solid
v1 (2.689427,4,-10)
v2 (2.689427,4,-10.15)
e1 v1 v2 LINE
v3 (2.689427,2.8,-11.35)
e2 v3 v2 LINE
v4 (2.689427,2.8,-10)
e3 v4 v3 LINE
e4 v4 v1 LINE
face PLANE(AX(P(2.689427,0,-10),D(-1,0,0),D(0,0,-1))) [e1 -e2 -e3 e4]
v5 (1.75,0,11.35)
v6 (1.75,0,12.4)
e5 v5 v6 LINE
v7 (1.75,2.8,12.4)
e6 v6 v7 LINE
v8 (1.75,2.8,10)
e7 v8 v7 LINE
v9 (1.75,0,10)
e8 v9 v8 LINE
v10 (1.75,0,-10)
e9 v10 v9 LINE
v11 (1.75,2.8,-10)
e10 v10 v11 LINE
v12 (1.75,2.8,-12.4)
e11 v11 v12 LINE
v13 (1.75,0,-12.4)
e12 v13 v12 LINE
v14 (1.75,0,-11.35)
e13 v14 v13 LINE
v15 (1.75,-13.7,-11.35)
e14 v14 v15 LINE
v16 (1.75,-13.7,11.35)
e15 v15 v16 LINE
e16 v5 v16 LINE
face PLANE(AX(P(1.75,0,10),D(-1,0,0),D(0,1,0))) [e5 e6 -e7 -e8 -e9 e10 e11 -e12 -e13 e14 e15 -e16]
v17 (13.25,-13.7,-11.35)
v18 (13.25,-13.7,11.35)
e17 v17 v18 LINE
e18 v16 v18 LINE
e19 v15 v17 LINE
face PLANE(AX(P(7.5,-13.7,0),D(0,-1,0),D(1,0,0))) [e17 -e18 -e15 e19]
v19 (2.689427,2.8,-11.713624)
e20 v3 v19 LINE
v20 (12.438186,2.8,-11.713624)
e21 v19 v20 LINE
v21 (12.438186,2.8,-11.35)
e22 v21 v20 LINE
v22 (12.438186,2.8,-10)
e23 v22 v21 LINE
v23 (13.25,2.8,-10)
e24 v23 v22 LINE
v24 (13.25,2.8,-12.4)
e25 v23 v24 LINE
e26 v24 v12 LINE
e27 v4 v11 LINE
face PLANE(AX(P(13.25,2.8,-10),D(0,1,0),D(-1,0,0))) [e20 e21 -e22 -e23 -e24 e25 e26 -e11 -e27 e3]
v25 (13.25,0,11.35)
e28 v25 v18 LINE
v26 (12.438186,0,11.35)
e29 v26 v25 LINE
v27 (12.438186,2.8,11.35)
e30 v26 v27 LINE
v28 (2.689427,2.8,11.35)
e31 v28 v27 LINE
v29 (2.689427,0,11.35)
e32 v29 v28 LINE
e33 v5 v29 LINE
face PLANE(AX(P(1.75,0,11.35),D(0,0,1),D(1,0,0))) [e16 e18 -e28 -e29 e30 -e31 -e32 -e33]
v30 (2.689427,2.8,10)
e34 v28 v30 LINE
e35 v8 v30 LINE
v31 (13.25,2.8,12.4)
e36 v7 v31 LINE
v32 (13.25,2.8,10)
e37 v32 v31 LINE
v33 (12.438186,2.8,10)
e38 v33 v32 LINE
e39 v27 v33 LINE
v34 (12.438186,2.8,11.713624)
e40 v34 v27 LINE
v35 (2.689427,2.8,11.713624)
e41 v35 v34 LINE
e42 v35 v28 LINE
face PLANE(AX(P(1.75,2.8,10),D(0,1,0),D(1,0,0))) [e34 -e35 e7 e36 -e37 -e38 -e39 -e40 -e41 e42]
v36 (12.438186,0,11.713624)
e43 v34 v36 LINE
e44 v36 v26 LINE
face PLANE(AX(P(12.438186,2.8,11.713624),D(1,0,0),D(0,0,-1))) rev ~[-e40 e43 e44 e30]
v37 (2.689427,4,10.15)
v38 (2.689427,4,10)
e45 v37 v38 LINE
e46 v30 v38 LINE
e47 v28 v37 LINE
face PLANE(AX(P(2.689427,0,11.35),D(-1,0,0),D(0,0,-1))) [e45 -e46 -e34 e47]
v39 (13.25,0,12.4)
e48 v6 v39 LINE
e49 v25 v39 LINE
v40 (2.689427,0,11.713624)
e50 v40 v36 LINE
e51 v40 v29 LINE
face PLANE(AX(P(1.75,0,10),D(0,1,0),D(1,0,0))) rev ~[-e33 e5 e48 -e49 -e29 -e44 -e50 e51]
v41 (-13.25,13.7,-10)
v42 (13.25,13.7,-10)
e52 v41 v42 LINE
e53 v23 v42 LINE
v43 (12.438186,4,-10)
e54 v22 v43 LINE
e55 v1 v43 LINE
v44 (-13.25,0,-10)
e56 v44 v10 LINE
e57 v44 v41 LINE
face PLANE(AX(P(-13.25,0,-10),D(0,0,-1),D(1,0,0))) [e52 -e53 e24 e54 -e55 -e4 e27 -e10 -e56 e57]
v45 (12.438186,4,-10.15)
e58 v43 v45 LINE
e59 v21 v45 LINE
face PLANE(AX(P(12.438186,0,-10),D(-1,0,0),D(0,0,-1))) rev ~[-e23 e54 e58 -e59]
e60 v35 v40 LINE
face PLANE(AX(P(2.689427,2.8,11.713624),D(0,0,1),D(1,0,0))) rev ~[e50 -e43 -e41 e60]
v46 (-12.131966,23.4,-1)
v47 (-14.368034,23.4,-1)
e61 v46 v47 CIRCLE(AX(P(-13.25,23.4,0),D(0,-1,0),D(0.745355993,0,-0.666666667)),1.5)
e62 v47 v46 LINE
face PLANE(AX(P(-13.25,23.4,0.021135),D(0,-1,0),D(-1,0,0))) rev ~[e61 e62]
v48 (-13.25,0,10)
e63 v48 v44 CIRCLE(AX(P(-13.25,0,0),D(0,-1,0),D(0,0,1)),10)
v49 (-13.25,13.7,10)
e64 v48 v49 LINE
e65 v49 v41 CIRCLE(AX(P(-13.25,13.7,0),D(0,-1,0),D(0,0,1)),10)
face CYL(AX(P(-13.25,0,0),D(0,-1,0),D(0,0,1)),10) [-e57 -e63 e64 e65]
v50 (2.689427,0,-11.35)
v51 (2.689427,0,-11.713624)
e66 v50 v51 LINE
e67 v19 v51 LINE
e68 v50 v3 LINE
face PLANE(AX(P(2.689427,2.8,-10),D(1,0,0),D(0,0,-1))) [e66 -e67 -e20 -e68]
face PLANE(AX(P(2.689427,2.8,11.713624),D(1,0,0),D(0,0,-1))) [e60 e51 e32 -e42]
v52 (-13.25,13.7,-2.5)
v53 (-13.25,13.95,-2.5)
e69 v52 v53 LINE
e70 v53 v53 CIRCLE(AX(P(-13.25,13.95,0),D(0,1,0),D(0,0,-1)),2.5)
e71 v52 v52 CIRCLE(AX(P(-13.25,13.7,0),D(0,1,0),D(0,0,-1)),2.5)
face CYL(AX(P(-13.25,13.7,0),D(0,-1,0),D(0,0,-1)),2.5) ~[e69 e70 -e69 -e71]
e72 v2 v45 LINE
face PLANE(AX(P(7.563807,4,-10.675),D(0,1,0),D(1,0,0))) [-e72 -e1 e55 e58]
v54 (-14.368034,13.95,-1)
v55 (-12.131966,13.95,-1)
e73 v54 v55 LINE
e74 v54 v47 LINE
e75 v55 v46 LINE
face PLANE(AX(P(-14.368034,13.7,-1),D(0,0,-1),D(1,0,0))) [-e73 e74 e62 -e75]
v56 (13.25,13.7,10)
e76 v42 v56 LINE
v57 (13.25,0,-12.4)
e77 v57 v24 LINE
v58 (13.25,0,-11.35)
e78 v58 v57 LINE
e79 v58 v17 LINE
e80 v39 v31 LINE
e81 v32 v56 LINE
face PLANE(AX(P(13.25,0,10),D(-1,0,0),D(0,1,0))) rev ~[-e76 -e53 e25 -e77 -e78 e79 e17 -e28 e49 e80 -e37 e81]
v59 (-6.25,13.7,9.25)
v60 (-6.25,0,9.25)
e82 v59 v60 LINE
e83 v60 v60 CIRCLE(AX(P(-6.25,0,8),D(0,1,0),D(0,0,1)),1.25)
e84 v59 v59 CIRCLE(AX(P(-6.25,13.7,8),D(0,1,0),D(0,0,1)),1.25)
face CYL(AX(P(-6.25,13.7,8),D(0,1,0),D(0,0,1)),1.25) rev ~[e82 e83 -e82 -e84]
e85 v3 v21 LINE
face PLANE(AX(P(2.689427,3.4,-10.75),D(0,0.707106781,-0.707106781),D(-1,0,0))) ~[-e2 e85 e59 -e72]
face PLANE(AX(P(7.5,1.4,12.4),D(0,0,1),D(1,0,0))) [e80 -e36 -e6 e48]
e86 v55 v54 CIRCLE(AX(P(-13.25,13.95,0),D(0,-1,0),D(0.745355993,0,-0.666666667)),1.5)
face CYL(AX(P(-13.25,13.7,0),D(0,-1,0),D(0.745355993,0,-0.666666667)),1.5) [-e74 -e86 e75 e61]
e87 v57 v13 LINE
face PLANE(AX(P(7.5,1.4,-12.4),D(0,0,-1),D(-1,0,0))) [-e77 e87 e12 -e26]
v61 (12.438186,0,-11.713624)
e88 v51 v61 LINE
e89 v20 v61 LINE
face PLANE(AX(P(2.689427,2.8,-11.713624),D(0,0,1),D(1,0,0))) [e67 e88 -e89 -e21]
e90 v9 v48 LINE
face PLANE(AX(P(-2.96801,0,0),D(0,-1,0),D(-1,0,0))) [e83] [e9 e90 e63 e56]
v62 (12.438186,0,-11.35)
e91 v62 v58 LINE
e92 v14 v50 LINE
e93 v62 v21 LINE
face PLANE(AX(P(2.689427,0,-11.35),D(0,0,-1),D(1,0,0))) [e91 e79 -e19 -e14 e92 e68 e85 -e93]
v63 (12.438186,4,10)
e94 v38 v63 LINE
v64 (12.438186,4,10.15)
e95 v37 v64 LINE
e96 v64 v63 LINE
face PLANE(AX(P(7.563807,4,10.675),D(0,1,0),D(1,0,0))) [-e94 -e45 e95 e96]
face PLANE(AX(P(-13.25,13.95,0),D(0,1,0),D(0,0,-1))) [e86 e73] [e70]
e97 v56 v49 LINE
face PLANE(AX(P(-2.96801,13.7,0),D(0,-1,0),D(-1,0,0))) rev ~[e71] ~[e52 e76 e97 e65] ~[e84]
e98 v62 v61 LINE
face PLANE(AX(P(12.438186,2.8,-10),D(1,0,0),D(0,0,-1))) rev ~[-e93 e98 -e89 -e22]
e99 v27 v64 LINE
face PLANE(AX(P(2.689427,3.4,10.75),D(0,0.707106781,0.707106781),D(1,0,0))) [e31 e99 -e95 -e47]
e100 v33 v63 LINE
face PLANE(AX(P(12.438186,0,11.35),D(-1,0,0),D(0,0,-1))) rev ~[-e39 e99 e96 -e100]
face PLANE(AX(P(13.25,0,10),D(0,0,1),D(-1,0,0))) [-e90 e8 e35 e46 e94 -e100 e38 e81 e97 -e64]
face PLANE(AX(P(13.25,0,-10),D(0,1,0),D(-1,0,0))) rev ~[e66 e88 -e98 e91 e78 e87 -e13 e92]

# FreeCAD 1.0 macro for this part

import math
import FreeCAD as App
import Part
import Sketcher
from FreeCAD import Vector


def edges_at(feature, points):
    """Names of the edges that pass closest to the given points."""
    edges = feature.Shape.Edges
    near = lambda p: min(range(len(edges)), key=lambda i: edges[i].distToShape(Part.Vertex(*p))[0])
    return sorted({f"Edge{near(p) + 1}" for p in points})

doc = App.newDocument("Part")
body = doc.addObject("PartDesign::Body", "Body")

# Sketch on XZ plane
sketch1 = body.newObject("Sketcher::SketchObject", "Sketch")
sketch1.AttachmentSupport = (doc.getObject("XZ_Plane"), [""])
sketch1.MapMode = "FlatFace"
sketch1.addGeometry([
    Part.LineSegment(Vector(13, -10, 0), Vector(-13, -10, 0)),
    Part.ArcOfCircle(Part.Circle(Vector(-13, 0, 0), Vector(0, 0, 1), 10), math.radians(90), math.radians(270)),
    Part.LineSegment(Vector(-13, 10, 0), Vector(13, 10, 0)),
    Part.LineSegment(Vector(13, 10, 0), Vector(13, -10, 0)),
], False)
sketch1.addConstraint([
    Sketcher.Constraint("Tangent", 0, 2, 1, 2),
    Sketcher.Constraint("Tangent", 1, 1, 2, 1),
    Sketcher.Constraint("Coincident", 2, 2, 3, 1),
    Sketcher.Constraint("Coincident", 3, 2, 0, 1),
    Sketcher.Constraint("Horizontal", 0),
    Sketcher.Constraint("Horizontal", 2),
    Sketcher.Constraint("Vertical", 3),
    Sketcher.Constraint("Symmetric", 0, 2, 2, 2, -1, 1),
    Sketcher.Constraint("Radius", 1, 10.0),
    Sketcher.Constraint("DistanceX", 0, 2, 0, 1, 26.5),
])
pad1 = body.newObject("PartDesign::Pad", "Pad")
pad1.Profile = sketch1
pad1.Length = 13.7
pad1.Reversed = True

# Sketch on XZ plane
sketch2 = body.newObject("Sketcher::SketchObject", "Sketch001")
sketch2.AttachmentSupport = (doc.getObject("XZ_Plane"), [""])
sketch2.MapMode = "FlatFace"
sketch2.AttachmentOffset = App.Placement(Vector(0, 0, -13.7), App.Rotation())
sketch2.addGeometry([
    Part.LineSegment(Vector(-12.1, -1, 0), Vector(-14.4, -1, 0)),
    Part.ArcOfCircle(Part.Circle(Vector(-13.2, 0, 0), Vector(0, 0, 1), 1.5), math.radians(-42), math.radians(222)),
], False)
sketch2.addConstraint([
    Sketcher.Constraint("Coincident", 0, 1, 1, 1),
    Sketcher.Constraint("Coincident", 1, 2, 0, 2),
    Sketcher.Constraint("Horizontal", 0),
    Sketcher.Constraint("PointOnObject", 1, 3, -1),
    Sketcher.Constraint("Radius", 1, 1.5),
    Sketcher.Constraint("DistanceY", 0, 1, -1, 1, 1.0),
    Sketcher.Constraint("DistanceX", 1, 3, -1, 1, 13.25),
])
pad2 = body.newObject("PartDesign::Pad", "Pad001")
pad2.Profile = sketch2
pad2.Length = 9.7
pad2.Reversed = True

# Sketch on XZ plane
sketch3 = body.newObject("Sketcher::SketchObject", "Sketch002")
sketch3.AttachmentSupport = (doc.getObject("XZ_Plane"), [""])
sketch3.MapMode = "FlatFace"
sketch3.addGeometry([
    Part.LineSegment(Vector(2, 11, 0), Vector(2, -11, 0)),
    Part.LineSegment(Vector(2, -11, 0), Vector(13, -11, 0)),
    Part.LineSegment(Vector(13, -11, 0), Vector(13, 11, 0)),
    Part.LineSegment(Vector(13, 11, 0), Vector(2, 11, 0)),
], False)
sketch3.addConstraint([
    Sketcher.Constraint("Coincident", 0, 2, 1, 1),
    Sketcher.Constraint("Coincident", 1, 2, 2, 1),
    Sketcher.Constraint("Coincident", 2, 2, 3, 1),
    Sketcher.Constraint("Coincident", 3, 2, 0, 1),
    Sketcher.Constraint("Vertical", 0),
    Sketcher.Constraint("Horizontal", 1),
    Sketcher.Constraint("Vertical", 2),
    Sketcher.Constraint("Horizontal", 3),
    Sketcher.Constraint("DistanceX", 1, 1, 1, 2, 11.5),
    Sketcher.Constraint("DistanceY", 0, 2, 0, 1, 22.7),
    Sketcher.Constraint("DistanceX", -1, 1, 0, 2, 1.75),
    Sketcher.Constraint("DistanceY", 0, 2, -1, 1, 11.35),
])
pad3 = body.newObject("PartDesign::Pad", "Pad002")
pad3.Profile = sketch3
pad3.Length = 13.7

# Sketch on XY plane
sketch4 = body.newObject("Sketcher::SketchObject", "Sketch003")
sketch4.AttachmentSupport = (doc.getObject("XY_Plane"), [""])
sketch4.MapMode = "FlatFace"
sketch4.AttachmentOffset = App.Placement(Vector(0, 0, -10), App.Rotation())
sketch4.addGeometry([
    Part.LineSegment(Vector(13.2, 2.8, 0), Vector(13.2, 0, 0)),
    Part.LineSegment(Vector(13.2, 0, 0), Vector(1.8, 0, 0)),
    Part.LineSegment(Vector(1.8, 0, 0), Vector(1.8, 2.8, 0)),
    Part.LineSegment(Vector(1.8, 2.8, 0), Vector(13.2, 2.8, 0)),
], False)
sketch4.addConstraint([
    Sketcher.Constraint("Coincident", 0, 2, 1, 1),
    Sketcher.Constraint("Coincident", 1, 2, 2, 1),
    Sketcher.Constraint("Coincident", 2, 2, 3, 1),
    Sketcher.Constraint("Coincident", 3, 2, 0, 1),
    Sketcher.Constraint("Vertical", 0),
    Sketcher.Constraint("Horizontal", 1),
    Sketcher.Constraint("Vertical", 2),
    Sketcher.Constraint("Horizontal", 3),
    Sketcher.Constraint("PointOnObject", 0, 2, -1),
    Sketcher.Constraint("DistanceX", 1, 2, 1, 1, 11.5),
    Sketcher.Constraint("DistanceY", 0, 2, 0, 1, 2.8),
    Sketcher.Constraint("DistanceX", -1, 1, 0, 2, 13.25),
])
pad4 = body.newObject("PartDesign::Pad", "Pad003")
pad4.Profile = sketch4
pad4.Length = 2.4
pad4.Reversed = True

# Sketch on XY plane
sketch5 = body.newObject("Sketcher::SketchObject", "Sketch004")
sketch5.AttachmentSupport = (doc.getObject("XY_Plane"), [""])
sketch5.MapMode = "FlatFace"
sketch5.AttachmentOffset = App.Placement(Vector(0, 0, 10), App.Rotation())
sketch5.addGeometry([
    Part.LineSegment(Vector(1.8, 2.8, 0), Vector(1.8, 0, 0)),
    Part.LineSegment(Vector(1.8, 0, 0), Vector(13.2, 0, 0)),
    Part.LineSegment(Vector(13.2, 0, 0), Vector(13.2, 2.8, 0)),
    Part.LineSegment(Vector(13.2, 2.8, 0), Vector(1.8, 2.8, 0)),
], False)
sketch5.addConstraint([
    Sketcher.Constraint("Coincident", 0, 2, 1, 1),
    Sketcher.Constraint("Coincident", 1, 2, 2, 1),
    Sketcher.Constraint("Coincident", 2, 2, 3, 1),
    Sketcher.Constraint("Coincident", 3, 2, 0, 1),
    Sketcher.Constraint("Vertical", 0),
    Sketcher.Constraint("Horizontal", 1),
    Sketcher.Constraint("Vertical", 2),
    Sketcher.Constraint("Horizontal", 3),
    Sketcher.Constraint("PointOnObject", 0, 2, -1),
    Sketcher.Constraint("DistanceX", 1, 1, 1, 2, 11.5),
    Sketcher.Constraint("DistanceY", 0, 2, 0, 1, 2.8),
    Sketcher.Constraint("DistanceX", -1, 1, 0, 2, 1.75),
])
pad5 = body.newObject("PartDesign::Pad", "Pad004")
pad5.Profile = sketch5
pad5.Length = 2.4

# Sketch on XZ plane
sketch6 = body.newObject("Sketcher::SketchObject", "Sketch005")
sketch6.AttachmentSupport = (doc.getObject("XZ_Plane"), [""])
sketch6.MapMode = "FlatFace"
sketch6.AttachmentOffset = App.Placement(Vector(0, 0, -2.8), App.Rotation())
sketch6.addGeometry([
    Part.LineSegment(Vector(2.7, -11.7, 0), Vector(2.7, -10, 0)),  # 0
    Part.LineSegment(Vector(2.7, -10, 0), Vector(12.4, -10, 0)),  # 1
    Part.LineSegment(Vector(12.4, -10, 0), Vector(12.4, -11.7, 0)),  # 2
    Part.LineSegment(Vector(12.4, -11.7, 0), Vector(2.7, -11.7, 0)),  # 3
    Part.LineSegment(Vector(2.7, 10, 0), Vector(2.7, 11.7, 0)),  # 4
    Part.LineSegment(Vector(2.7, 11.7, 0), Vector(12.4, 11.7, 0)),  # 5
    Part.LineSegment(Vector(12.4, 11.7, 0), Vector(12.4, 10, 0)),  # 6
    Part.LineSegment(Vector(12.4, 10, 0), Vector(2.7, 10, 0)),  # 7
], False)
sketch6.addConstraint([
    Sketcher.Constraint("Coincident", 0, 2, 1, 1),
    Sketcher.Constraint("Coincident", 1, 2, 2, 1),
    Sketcher.Constraint("Coincident", 2, 2, 3, 1),
    Sketcher.Constraint("Coincident", 3, 2, 0, 1),
    Sketcher.Constraint("Coincident", 4, 2, 5, 1),
    Sketcher.Constraint("Coincident", 5, 2, 6, 1),
    Sketcher.Constraint("Coincident", 6, 2, 7, 1),
    Sketcher.Constraint("Coincident", 7, 2, 4, 1),
    Sketcher.Constraint("Vertical", 0),
    Sketcher.Constraint("Horizontal", 1),
    Sketcher.Constraint("Vertical", 2),
    Sketcher.Constraint("Horizontal", 3),
    Sketcher.Constraint("Vertical", 4),
    Sketcher.Constraint("Horizontal", 5),
    Sketcher.Constraint("Vertical", 6),
    Sketcher.Constraint("Horizontal", 7),
    Sketcher.Constraint("Symmetric", 3, 2, 4, 2, -1),
    Sketcher.Constraint("Symmetric", 1, 2, 6, 2, -1),
    Sketcher.Constraint("DistanceY", 0, 2, -1, 1, 10.0),
    Sketcher.Constraint("DistanceX", 1, 1, 1, 2, 9.748758),
    Sketcher.Constraint("DistanceY", 0, 1, 0, 2, 1.713624),
    Sketcher.Constraint("DistanceX", -1, 1, 0, 2, 2.689427),
])
pocket1 = body.newObject("PartDesign::Pocket", "Pocket")
pocket1.Profile = sketch6
pocket1.Length = 2.8
pocket1.Reversed = True

# Sketch on XZ plane
sketch7 = body.newObject("Sketcher::SketchObject", "Sketch006")
sketch7.AttachmentSupport = (doc.getObject("XZ_Plane"), [""])
sketch7.MapMode = "FlatFace"
sketch7.addGeometry([
    Part.LineSegment(Vector(2.7, -11.3, 0), Vector(2.7, -10, 0)),  # 0
    Part.LineSegment(Vector(2.7, -10, 0), Vector(12.4, -10, 0)),  # 1
    Part.LineSegment(Vector(12.4, -10, 0), Vector(12.4, -11.3, 0)),  # 2
    Part.LineSegment(Vector(12.4, -11.3, 0), Vector(2.7, -11.3, 0)),  # 3
    Part.LineSegment(Vector(2.7, 10, 0), Vector(2.7, 11.3, 0)),  # 4
    Part.LineSegment(Vector(2.7, 11.3, 0), Vector(12.4, 11.3, 0)),  # 5
    Part.LineSegment(Vector(12.4, 11.3, 0), Vector(12.4, 10, 0)),  # 6
    Part.LineSegment(Vector(12.4, 10, 0), Vector(2.7, 10, 0)),  # 7
], False)
sketch7.addConstraint([
    Sketcher.Constraint("Coincident", 0, 2, 1, 1),
    Sketcher.Constraint("Coincident", 1, 2, 2, 1),
    Sketcher.Constraint("Coincident", 2, 2, 3, 1),
    Sketcher.Constraint("Coincident", 3, 2, 0, 1),
    Sketcher.Constraint("Coincident", 4, 2, 5, 1),
    Sketcher.Constraint("Coincident", 5, 2, 6, 1),
    Sketcher.Constraint("Coincident", 6, 2, 7, 1),
    Sketcher.Constraint("Coincident", 7, 2, 4, 1),
    Sketcher.Constraint("Vertical", 0),
    Sketcher.Constraint("Horizontal", 1),
    Sketcher.Constraint("Vertical", 2),
    Sketcher.Constraint("Horizontal", 3),
    Sketcher.Constraint("Vertical", 4),
    Sketcher.Constraint("Horizontal", 5),
    Sketcher.Constraint("Vertical", 6),
    Sketcher.Constraint("Horizontal", 7),
    Sketcher.Constraint("Symmetric", 3, 2, 4, 2, -1),
    Sketcher.Constraint("Symmetric", 1, 2, 6, 2, -1),
    Sketcher.Constraint("DistanceY", 0, 2, -1, 1, 10.0),
    Sketcher.Constraint("DistanceY", 0, 1, 0, 2, 1.35),
    Sketcher.Constraint("DistanceX", 1, 1, 1, 2, 9.748758),
    Sketcher.Constraint("DistanceX", -1, 1, 0, 2, 2.689427),
])
pad6 = body.newObject("PartDesign::Pad", "Pad005")
pad6.Profile = sketch7
pad6.Length = 4
pad6.Reversed = True
doc.recompute()

chamfer = body.newObject("PartDesign::Chamfer", "Chamfer")
chamfer.Base = (pad6, edges_at(pad6, [(7.564, 4, -11.35), (7.564, 4, 11.35)]))
chamfer.Size = 1.2

# Sketch on XZ plane
sketch8 = body.newObject("Sketcher::SketchObject", "Sketch007")
sketch8.AttachmentSupport = (doc.getObject("XZ_Plane"), [""])
sketch8.MapMode = "FlatFace"
sketch8.AttachmentOffset = App.Placement(Vector(0, 0, -13.7), App.Rotation())
sketch8.addGeometry(Part.Circle(Vector(-13.2, 0, 0), Vector(0, 0, 1), 2.5), False)
sketch8.addConstraint([
    Sketcher.Constraint("PointOnObject", 0, 3, -1),
    Sketcher.Constraint("Diameter", 0, 5.0),
    Sketcher.Constraint("DistanceX", 0, 3, -1, 1, 13.25),
])
pad7 = body.newObject("PartDesign::Pad", "Pad006")
pad7.Profile = sketch8
pad7.Length = 0.25
pad7.Reversed = True

# Sketch on XZ plane
sketch9 = body.newObject("Sketcher::SketchObject", "Sketch008")
sketch9.AttachmentSupport = (doc.getObject("XZ_Plane"), [""])
sketch9.MapMode = "FlatFace"
sketch9.AttachmentOffset = App.Placement(Vector(0, 0, -13.7), App.Rotation())
sketch9.addGeometry(Part.Circle(Vector(-6.2, 8, 0), Vector(0, 0, 1), 1.2), False)
sketch9.addConstraint([
    Sketcher.Constraint("Diameter", 0, 2.5),
    Sketcher.Constraint("DistanceY", -1, 1, 0, 3, 8.0),
    Sketcher.Constraint("DistanceX", 0, 3, -1, 1, 6.25),
])
pocket2 = body.newObject("PartDesign::Pocket", "Pocket001")
pocket2.Profile = sketch9
pocket2.Type = "ThroughAll"
pocket2.Reversed = True

doc.recompute()
